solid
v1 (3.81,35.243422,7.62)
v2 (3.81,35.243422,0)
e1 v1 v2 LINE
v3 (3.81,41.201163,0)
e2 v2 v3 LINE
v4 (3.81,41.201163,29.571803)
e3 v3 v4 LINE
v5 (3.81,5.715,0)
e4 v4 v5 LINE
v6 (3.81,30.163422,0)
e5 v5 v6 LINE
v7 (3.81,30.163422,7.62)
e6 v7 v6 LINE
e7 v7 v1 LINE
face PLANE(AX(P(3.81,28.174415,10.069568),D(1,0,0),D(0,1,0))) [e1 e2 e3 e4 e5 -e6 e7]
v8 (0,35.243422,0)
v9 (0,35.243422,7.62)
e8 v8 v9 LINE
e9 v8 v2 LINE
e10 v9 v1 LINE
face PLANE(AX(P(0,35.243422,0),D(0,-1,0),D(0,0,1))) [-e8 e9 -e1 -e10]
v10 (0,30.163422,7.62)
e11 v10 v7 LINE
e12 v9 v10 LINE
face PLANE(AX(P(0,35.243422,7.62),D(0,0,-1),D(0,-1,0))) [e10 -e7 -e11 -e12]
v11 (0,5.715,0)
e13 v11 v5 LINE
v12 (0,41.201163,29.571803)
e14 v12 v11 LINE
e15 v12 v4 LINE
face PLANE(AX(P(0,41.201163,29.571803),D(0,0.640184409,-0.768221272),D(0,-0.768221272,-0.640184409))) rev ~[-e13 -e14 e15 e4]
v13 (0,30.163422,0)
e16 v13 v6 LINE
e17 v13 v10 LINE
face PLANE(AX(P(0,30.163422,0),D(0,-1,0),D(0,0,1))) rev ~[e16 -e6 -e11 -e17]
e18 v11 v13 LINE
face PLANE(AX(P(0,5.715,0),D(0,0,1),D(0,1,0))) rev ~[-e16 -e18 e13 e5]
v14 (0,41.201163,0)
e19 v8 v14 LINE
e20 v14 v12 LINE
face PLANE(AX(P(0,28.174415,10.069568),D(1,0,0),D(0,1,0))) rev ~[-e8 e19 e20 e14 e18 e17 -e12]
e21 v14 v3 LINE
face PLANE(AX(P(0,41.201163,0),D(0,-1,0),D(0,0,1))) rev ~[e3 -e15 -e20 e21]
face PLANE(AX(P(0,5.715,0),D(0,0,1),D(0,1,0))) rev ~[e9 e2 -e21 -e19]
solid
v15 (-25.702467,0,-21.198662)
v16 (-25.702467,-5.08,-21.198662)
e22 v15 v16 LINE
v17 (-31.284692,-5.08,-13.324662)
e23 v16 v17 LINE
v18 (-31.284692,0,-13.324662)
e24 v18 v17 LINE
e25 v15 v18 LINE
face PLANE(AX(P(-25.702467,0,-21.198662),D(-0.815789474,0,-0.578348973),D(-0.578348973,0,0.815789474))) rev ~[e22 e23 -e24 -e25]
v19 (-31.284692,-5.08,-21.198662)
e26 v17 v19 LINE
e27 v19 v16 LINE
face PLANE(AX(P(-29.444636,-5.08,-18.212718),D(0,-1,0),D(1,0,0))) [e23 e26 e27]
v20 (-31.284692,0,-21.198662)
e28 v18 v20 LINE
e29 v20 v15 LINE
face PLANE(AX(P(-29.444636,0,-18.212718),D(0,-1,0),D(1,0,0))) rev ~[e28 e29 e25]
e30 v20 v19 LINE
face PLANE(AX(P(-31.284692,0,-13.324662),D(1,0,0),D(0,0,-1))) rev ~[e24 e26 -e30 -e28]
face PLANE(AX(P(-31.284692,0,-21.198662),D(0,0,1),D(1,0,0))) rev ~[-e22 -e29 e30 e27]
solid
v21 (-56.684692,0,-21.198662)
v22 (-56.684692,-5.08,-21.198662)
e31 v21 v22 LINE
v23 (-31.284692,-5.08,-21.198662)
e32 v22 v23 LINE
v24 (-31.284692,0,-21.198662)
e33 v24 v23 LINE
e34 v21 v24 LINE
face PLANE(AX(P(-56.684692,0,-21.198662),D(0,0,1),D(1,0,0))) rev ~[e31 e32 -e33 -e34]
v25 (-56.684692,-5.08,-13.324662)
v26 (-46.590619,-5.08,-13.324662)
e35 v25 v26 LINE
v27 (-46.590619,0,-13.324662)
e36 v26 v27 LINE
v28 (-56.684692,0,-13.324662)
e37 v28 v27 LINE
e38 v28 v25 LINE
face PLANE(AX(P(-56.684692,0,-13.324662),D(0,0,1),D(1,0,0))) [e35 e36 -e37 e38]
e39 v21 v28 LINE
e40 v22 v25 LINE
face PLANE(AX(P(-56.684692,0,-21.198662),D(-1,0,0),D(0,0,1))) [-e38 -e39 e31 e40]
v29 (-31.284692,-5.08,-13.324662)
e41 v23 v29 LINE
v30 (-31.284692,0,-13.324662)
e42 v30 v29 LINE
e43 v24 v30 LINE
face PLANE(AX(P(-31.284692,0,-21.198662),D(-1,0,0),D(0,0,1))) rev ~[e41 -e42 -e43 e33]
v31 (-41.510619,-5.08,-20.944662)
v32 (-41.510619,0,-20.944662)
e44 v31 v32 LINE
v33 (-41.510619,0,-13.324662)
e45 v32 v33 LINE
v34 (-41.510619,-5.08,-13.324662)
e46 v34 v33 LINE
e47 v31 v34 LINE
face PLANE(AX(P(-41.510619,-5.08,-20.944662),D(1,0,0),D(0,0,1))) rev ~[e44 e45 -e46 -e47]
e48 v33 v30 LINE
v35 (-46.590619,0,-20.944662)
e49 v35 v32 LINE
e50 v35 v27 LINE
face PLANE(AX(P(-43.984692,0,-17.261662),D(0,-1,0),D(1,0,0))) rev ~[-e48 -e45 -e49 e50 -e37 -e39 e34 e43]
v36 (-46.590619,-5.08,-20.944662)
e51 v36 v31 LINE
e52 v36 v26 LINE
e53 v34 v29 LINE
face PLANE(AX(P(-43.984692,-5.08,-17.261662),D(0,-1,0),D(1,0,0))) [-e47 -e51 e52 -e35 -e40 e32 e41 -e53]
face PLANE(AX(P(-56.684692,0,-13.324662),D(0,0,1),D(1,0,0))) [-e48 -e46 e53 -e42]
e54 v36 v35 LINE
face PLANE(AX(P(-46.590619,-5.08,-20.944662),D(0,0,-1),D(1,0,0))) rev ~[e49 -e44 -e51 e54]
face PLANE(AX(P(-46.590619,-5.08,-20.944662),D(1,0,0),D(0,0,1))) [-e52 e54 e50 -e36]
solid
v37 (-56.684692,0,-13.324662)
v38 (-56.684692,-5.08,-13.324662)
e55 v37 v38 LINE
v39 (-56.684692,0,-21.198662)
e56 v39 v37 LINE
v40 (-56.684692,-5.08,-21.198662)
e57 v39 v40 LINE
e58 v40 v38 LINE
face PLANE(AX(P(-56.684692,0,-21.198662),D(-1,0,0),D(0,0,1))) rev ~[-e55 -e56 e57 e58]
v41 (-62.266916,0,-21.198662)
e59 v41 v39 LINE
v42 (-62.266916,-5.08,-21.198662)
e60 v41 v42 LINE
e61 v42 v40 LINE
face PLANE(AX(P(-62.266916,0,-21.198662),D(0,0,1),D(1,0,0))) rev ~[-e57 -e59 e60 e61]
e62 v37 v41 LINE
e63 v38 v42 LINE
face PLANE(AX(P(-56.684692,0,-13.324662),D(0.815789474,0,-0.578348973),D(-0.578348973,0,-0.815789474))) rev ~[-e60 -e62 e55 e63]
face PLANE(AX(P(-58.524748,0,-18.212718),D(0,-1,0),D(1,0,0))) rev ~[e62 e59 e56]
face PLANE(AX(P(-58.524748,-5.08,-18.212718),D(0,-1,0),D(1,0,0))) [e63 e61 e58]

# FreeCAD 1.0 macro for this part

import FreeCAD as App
import Part
import Sketcher
from FreeCAD import Vector
Q = App.Units.Quantity


def add_polygon(sketch, points):
    """Adds a closed chain of lines whose ends are joined by coincident constraints."""
    first, n = sketch.GeometryCount, len(points)
    for a, b in zip(points, points[1:] + points[:1]):
        sketch.addGeometry(Part.LineSegment(App.Vector(*a, 0), App.Vector(*b, 0)), False)
    for i in range(n):
        sketch.addConstraint(Sketcher.Constraint("Coincident", first + i, 2, first + (i + 1) % n, 1))

doc = App.newDocument("Part")
body = doc.addObject("PartDesign::Body", "Body")

# Sketch on YZ plane
sketch1 = body.newObject("Sketcher::SketchObject", "Sketch")
sketch1.AttachmentSupport = (doc.getObject("YZ_Plane"), [""])
sketch1.MapMode = "FlatFace"
add_polygon(sketch1, [(41, 0), (41, 30), (6, 0)])  # lines 0-2
sketch1.addConstraint(Sketcher.Constraint("Vertical", 0))
sketch1.addConstraint(Sketcher.Constraint("Horizontal", 2))
sketch1.addConstraint(Sketcher.Constraint("PointOnObject", 1, 2, -1))
sketch1.addConstraint(Sketcher.Constraint("DistanceX", -1, 1, 1, 2, Q("0.225 in")))
sketch1.addConstraint(Sketcher.Constraint("DistanceX", 2, 1, 2, 2, 35.486163))
sketch1.addConstraint(Sketcher.Constraint("DistanceY", 0, 1, 0, 2, 29.571803))
pad1 = body.newObject("PartDesign::Pad", "Pad")
pad1.Profile = sketch1
pad1.Length = Q("0.15 in")

# Sketch on YZ plane
sketch2 = body.newObject("Sketcher::SketchObject", "Sketch001")
sketch2.AttachmentSupport = (doc.getObject("YZ_Plane"), [""])
sketch2.MapMode = "FlatFace"
add_polygon(sketch2, [(35, 8), (35, 0), (30, 0), (30, 8)])  # lines 0-3
sketch2.addConstraint(Sketcher.Constraint("Vertical", 0))
sketch2.addConstraint(Sketcher.Constraint("Horizontal", 1))
sketch2.addConstraint(Sketcher.Constraint("Vertical", 2))
sketch2.addConstraint(Sketcher.Constraint("Horizontal", 3))
sketch2.addConstraint(Sketcher.Constraint("PointOnObject", 0, 2, -1))
sketch2.addConstraint(Sketcher.Constraint("DistanceX", 1, 2, 1, 1, Q("0.2 in")))
sketch2.addConstraint(Sketcher.Constraint("DistanceY", 0, 2, 0, 1, Q("0.3 in")))
sketch2.addConstraint(Sketcher.Constraint("DistanceX", -1, 1, 0, 2, 35.243422))
pocket1 = body.newObject("PartDesign::Pocket", "Pocket")
pocket1.Profile = sketch2
pocket1.Length = Q("1 in")
pocket1.Reversed = True
body2 = doc.addObject("PartDesign::Body", "Body001")

# Sketch on XZ plane
sketch3 = body2.newObject("Sketcher::SketchObject", "Sketch002")
sketch3.AttachmentSupport = (doc.getObject("XZ_Plane001"), [""])
sketch3.MapMode = "FlatFace"
add_polygon(sketch3, [(-57, -21), (-57, -13), (-62, -21)])  # lines 0-2
sketch3.addConstraint(Sketcher.Constraint("Vertical", 0))
sketch3.addConstraint(Sketcher.Constraint("Horizontal", 2))
sketch3.addConstraint(Sketcher.Constraint("DistanceY", 0, 1, 0, 2, Q("0.31 in")))
sketch3.addConstraint(Sketcher.Constraint("Distance", 1, Q("0.38 in")))
sketch3.addConstraint(Sketcher.Constraint("DistanceX", 0, 2, -1, 1, 56.684692))
sketch3.addConstraint(Sketcher.Constraint("DistanceY", 0, 2, -1, 1, 13.324662))
pad2 = body2.newObject("PartDesign::Pad", "Pad001")
pad2.Profile = sketch3
pad2.Length = Q("0.2 in")
body3 = doc.addObject("PartDesign::Body", "Body002")

# Sketch on XZ plane
sketch4 = body3.newObject("Sketcher::SketchObject", "Sketch003")
sketch4.AttachmentSupport = (doc.getObject("XZ_Plane002"), [""])
sketch4.MapMode = "FlatFace"
add_polygon(sketch4, [(-26, -21), (-31, -13), (-31, -21)])  # lines 0-2
sketch4.addConstraint(Sketcher.Constraint("Vertical", 1))
sketch4.addConstraint(Sketcher.Constraint("Horizontal", 2))
sketch4.addConstraint(Sketcher.Constraint("DistanceY", 1, 2, 1, 1, Q("0.31 in")))
sketch4.addConstraint(Sketcher.Constraint("Distance", 0, Q("0.38 in")))
sketch4.addConstraint(Sketcher.Constraint("DistanceX", 0, 2, -1, 1, 31.284692))
sketch4.addConstraint(Sketcher.Constraint("DistanceY", 0, 2, -1, 1, 13.324662))
pad3 = body3.newObject("PartDesign::Pad", "Pad002")
pad3.Profile = sketch4
pad3.Length = Q("0.2 in")
body4 = doc.addObject("PartDesign::Body", "Body003")

# Sketch on XZ plane
sketch5 = body4.newObject("Sketcher::SketchObject", "Sketch004")
sketch5.AttachmentSupport = (doc.getObject("XZ_Plane003"), [""])
sketch5.MapMode = "FlatFace"
add_polygon(sketch5, [(-57, -13), (-57, -21), (-31, -21), (-31, -13)])  # lines 0-3
sketch5.addConstraint(Sketcher.Constraint("Vertical", 0))
sketch5.addConstraint(Sketcher.Constraint("Horizontal", 1))
sketch5.addConstraint(Sketcher.Constraint("Vertical", 2))
sketch5.addConstraint(Sketcher.Constraint("Horizontal", 3))
sketch5.addConstraint(Sketcher.Constraint("DistanceX", 1, 1, 1, 2, Q("1 in")))
sketch5.addConstraint(Sketcher.Constraint("DistanceY", 0, 2, 0, 1, Q("0.31 in")))
sketch5.addConstraint(Sketcher.Constraint("DistanceX", 0, 2, -1, 1, 56.684692))
sketch5.addConstraint(Sketcher.Constraint("DistanceY", 0, 2, -1, 1, 21.198662))
pad4 = body4.newObject("PartDesign::Pad", "Pad003")
pad4.Profile = sketch5
pad4.Length = Q("0.2 in")

# Sketch on XZ plane
sketch6 = body4.newObject("Sketcher::SketchObject", "Sketch005")
sketch6.AttachmentSupport = (doc.getObject("XZ_Plane003"), [""])
sketch6.MapMode = "FlatFace"
sketch6.AttachmentOffset = App.Placement(Vector(0, 0, 0.2 * 25.4), App.Rotation())
add_polygon(sketch6, [(-47, -13), (-47, -21), (-42, -21), (-42, -13)])  # lines 0-3
sketch6.addConstraint(Sketcher.Constraint("Vertical", 0))
sketch6.addConstraint(Sketcher.Constraint("Horizontal", 1))
sketch6.addConstraint(Sketcher.Constraint("Vertical", 2))
sketch6.addConstraint(Sketcher.Constraint("Horizontal", 3))
sketch6.addConstraint(Sketcher.Constraint("DistanceX", 1, 1, 1, 2, Q("0.2 in")))
sketch6.addConstraint(Sketcher.Constraint("DistanceY", 0, 2, 0, 1, Q("0.3 in")))
sketch6.addConstraint(Sketcher.Constraint("DistanceX", 0, 2, -1, 1, 46.590619))
sketch6.addConstraint(Sketcher.Constraint("DistanceY", 0, 2, -1, 1, 20.944662))
pocket2 = body4.newObject("PartDesign::Pocket", "Pocket001")
pocket2.Profile = sketch6
pocket2.Length = Q("1 in")

doc.recompute()
